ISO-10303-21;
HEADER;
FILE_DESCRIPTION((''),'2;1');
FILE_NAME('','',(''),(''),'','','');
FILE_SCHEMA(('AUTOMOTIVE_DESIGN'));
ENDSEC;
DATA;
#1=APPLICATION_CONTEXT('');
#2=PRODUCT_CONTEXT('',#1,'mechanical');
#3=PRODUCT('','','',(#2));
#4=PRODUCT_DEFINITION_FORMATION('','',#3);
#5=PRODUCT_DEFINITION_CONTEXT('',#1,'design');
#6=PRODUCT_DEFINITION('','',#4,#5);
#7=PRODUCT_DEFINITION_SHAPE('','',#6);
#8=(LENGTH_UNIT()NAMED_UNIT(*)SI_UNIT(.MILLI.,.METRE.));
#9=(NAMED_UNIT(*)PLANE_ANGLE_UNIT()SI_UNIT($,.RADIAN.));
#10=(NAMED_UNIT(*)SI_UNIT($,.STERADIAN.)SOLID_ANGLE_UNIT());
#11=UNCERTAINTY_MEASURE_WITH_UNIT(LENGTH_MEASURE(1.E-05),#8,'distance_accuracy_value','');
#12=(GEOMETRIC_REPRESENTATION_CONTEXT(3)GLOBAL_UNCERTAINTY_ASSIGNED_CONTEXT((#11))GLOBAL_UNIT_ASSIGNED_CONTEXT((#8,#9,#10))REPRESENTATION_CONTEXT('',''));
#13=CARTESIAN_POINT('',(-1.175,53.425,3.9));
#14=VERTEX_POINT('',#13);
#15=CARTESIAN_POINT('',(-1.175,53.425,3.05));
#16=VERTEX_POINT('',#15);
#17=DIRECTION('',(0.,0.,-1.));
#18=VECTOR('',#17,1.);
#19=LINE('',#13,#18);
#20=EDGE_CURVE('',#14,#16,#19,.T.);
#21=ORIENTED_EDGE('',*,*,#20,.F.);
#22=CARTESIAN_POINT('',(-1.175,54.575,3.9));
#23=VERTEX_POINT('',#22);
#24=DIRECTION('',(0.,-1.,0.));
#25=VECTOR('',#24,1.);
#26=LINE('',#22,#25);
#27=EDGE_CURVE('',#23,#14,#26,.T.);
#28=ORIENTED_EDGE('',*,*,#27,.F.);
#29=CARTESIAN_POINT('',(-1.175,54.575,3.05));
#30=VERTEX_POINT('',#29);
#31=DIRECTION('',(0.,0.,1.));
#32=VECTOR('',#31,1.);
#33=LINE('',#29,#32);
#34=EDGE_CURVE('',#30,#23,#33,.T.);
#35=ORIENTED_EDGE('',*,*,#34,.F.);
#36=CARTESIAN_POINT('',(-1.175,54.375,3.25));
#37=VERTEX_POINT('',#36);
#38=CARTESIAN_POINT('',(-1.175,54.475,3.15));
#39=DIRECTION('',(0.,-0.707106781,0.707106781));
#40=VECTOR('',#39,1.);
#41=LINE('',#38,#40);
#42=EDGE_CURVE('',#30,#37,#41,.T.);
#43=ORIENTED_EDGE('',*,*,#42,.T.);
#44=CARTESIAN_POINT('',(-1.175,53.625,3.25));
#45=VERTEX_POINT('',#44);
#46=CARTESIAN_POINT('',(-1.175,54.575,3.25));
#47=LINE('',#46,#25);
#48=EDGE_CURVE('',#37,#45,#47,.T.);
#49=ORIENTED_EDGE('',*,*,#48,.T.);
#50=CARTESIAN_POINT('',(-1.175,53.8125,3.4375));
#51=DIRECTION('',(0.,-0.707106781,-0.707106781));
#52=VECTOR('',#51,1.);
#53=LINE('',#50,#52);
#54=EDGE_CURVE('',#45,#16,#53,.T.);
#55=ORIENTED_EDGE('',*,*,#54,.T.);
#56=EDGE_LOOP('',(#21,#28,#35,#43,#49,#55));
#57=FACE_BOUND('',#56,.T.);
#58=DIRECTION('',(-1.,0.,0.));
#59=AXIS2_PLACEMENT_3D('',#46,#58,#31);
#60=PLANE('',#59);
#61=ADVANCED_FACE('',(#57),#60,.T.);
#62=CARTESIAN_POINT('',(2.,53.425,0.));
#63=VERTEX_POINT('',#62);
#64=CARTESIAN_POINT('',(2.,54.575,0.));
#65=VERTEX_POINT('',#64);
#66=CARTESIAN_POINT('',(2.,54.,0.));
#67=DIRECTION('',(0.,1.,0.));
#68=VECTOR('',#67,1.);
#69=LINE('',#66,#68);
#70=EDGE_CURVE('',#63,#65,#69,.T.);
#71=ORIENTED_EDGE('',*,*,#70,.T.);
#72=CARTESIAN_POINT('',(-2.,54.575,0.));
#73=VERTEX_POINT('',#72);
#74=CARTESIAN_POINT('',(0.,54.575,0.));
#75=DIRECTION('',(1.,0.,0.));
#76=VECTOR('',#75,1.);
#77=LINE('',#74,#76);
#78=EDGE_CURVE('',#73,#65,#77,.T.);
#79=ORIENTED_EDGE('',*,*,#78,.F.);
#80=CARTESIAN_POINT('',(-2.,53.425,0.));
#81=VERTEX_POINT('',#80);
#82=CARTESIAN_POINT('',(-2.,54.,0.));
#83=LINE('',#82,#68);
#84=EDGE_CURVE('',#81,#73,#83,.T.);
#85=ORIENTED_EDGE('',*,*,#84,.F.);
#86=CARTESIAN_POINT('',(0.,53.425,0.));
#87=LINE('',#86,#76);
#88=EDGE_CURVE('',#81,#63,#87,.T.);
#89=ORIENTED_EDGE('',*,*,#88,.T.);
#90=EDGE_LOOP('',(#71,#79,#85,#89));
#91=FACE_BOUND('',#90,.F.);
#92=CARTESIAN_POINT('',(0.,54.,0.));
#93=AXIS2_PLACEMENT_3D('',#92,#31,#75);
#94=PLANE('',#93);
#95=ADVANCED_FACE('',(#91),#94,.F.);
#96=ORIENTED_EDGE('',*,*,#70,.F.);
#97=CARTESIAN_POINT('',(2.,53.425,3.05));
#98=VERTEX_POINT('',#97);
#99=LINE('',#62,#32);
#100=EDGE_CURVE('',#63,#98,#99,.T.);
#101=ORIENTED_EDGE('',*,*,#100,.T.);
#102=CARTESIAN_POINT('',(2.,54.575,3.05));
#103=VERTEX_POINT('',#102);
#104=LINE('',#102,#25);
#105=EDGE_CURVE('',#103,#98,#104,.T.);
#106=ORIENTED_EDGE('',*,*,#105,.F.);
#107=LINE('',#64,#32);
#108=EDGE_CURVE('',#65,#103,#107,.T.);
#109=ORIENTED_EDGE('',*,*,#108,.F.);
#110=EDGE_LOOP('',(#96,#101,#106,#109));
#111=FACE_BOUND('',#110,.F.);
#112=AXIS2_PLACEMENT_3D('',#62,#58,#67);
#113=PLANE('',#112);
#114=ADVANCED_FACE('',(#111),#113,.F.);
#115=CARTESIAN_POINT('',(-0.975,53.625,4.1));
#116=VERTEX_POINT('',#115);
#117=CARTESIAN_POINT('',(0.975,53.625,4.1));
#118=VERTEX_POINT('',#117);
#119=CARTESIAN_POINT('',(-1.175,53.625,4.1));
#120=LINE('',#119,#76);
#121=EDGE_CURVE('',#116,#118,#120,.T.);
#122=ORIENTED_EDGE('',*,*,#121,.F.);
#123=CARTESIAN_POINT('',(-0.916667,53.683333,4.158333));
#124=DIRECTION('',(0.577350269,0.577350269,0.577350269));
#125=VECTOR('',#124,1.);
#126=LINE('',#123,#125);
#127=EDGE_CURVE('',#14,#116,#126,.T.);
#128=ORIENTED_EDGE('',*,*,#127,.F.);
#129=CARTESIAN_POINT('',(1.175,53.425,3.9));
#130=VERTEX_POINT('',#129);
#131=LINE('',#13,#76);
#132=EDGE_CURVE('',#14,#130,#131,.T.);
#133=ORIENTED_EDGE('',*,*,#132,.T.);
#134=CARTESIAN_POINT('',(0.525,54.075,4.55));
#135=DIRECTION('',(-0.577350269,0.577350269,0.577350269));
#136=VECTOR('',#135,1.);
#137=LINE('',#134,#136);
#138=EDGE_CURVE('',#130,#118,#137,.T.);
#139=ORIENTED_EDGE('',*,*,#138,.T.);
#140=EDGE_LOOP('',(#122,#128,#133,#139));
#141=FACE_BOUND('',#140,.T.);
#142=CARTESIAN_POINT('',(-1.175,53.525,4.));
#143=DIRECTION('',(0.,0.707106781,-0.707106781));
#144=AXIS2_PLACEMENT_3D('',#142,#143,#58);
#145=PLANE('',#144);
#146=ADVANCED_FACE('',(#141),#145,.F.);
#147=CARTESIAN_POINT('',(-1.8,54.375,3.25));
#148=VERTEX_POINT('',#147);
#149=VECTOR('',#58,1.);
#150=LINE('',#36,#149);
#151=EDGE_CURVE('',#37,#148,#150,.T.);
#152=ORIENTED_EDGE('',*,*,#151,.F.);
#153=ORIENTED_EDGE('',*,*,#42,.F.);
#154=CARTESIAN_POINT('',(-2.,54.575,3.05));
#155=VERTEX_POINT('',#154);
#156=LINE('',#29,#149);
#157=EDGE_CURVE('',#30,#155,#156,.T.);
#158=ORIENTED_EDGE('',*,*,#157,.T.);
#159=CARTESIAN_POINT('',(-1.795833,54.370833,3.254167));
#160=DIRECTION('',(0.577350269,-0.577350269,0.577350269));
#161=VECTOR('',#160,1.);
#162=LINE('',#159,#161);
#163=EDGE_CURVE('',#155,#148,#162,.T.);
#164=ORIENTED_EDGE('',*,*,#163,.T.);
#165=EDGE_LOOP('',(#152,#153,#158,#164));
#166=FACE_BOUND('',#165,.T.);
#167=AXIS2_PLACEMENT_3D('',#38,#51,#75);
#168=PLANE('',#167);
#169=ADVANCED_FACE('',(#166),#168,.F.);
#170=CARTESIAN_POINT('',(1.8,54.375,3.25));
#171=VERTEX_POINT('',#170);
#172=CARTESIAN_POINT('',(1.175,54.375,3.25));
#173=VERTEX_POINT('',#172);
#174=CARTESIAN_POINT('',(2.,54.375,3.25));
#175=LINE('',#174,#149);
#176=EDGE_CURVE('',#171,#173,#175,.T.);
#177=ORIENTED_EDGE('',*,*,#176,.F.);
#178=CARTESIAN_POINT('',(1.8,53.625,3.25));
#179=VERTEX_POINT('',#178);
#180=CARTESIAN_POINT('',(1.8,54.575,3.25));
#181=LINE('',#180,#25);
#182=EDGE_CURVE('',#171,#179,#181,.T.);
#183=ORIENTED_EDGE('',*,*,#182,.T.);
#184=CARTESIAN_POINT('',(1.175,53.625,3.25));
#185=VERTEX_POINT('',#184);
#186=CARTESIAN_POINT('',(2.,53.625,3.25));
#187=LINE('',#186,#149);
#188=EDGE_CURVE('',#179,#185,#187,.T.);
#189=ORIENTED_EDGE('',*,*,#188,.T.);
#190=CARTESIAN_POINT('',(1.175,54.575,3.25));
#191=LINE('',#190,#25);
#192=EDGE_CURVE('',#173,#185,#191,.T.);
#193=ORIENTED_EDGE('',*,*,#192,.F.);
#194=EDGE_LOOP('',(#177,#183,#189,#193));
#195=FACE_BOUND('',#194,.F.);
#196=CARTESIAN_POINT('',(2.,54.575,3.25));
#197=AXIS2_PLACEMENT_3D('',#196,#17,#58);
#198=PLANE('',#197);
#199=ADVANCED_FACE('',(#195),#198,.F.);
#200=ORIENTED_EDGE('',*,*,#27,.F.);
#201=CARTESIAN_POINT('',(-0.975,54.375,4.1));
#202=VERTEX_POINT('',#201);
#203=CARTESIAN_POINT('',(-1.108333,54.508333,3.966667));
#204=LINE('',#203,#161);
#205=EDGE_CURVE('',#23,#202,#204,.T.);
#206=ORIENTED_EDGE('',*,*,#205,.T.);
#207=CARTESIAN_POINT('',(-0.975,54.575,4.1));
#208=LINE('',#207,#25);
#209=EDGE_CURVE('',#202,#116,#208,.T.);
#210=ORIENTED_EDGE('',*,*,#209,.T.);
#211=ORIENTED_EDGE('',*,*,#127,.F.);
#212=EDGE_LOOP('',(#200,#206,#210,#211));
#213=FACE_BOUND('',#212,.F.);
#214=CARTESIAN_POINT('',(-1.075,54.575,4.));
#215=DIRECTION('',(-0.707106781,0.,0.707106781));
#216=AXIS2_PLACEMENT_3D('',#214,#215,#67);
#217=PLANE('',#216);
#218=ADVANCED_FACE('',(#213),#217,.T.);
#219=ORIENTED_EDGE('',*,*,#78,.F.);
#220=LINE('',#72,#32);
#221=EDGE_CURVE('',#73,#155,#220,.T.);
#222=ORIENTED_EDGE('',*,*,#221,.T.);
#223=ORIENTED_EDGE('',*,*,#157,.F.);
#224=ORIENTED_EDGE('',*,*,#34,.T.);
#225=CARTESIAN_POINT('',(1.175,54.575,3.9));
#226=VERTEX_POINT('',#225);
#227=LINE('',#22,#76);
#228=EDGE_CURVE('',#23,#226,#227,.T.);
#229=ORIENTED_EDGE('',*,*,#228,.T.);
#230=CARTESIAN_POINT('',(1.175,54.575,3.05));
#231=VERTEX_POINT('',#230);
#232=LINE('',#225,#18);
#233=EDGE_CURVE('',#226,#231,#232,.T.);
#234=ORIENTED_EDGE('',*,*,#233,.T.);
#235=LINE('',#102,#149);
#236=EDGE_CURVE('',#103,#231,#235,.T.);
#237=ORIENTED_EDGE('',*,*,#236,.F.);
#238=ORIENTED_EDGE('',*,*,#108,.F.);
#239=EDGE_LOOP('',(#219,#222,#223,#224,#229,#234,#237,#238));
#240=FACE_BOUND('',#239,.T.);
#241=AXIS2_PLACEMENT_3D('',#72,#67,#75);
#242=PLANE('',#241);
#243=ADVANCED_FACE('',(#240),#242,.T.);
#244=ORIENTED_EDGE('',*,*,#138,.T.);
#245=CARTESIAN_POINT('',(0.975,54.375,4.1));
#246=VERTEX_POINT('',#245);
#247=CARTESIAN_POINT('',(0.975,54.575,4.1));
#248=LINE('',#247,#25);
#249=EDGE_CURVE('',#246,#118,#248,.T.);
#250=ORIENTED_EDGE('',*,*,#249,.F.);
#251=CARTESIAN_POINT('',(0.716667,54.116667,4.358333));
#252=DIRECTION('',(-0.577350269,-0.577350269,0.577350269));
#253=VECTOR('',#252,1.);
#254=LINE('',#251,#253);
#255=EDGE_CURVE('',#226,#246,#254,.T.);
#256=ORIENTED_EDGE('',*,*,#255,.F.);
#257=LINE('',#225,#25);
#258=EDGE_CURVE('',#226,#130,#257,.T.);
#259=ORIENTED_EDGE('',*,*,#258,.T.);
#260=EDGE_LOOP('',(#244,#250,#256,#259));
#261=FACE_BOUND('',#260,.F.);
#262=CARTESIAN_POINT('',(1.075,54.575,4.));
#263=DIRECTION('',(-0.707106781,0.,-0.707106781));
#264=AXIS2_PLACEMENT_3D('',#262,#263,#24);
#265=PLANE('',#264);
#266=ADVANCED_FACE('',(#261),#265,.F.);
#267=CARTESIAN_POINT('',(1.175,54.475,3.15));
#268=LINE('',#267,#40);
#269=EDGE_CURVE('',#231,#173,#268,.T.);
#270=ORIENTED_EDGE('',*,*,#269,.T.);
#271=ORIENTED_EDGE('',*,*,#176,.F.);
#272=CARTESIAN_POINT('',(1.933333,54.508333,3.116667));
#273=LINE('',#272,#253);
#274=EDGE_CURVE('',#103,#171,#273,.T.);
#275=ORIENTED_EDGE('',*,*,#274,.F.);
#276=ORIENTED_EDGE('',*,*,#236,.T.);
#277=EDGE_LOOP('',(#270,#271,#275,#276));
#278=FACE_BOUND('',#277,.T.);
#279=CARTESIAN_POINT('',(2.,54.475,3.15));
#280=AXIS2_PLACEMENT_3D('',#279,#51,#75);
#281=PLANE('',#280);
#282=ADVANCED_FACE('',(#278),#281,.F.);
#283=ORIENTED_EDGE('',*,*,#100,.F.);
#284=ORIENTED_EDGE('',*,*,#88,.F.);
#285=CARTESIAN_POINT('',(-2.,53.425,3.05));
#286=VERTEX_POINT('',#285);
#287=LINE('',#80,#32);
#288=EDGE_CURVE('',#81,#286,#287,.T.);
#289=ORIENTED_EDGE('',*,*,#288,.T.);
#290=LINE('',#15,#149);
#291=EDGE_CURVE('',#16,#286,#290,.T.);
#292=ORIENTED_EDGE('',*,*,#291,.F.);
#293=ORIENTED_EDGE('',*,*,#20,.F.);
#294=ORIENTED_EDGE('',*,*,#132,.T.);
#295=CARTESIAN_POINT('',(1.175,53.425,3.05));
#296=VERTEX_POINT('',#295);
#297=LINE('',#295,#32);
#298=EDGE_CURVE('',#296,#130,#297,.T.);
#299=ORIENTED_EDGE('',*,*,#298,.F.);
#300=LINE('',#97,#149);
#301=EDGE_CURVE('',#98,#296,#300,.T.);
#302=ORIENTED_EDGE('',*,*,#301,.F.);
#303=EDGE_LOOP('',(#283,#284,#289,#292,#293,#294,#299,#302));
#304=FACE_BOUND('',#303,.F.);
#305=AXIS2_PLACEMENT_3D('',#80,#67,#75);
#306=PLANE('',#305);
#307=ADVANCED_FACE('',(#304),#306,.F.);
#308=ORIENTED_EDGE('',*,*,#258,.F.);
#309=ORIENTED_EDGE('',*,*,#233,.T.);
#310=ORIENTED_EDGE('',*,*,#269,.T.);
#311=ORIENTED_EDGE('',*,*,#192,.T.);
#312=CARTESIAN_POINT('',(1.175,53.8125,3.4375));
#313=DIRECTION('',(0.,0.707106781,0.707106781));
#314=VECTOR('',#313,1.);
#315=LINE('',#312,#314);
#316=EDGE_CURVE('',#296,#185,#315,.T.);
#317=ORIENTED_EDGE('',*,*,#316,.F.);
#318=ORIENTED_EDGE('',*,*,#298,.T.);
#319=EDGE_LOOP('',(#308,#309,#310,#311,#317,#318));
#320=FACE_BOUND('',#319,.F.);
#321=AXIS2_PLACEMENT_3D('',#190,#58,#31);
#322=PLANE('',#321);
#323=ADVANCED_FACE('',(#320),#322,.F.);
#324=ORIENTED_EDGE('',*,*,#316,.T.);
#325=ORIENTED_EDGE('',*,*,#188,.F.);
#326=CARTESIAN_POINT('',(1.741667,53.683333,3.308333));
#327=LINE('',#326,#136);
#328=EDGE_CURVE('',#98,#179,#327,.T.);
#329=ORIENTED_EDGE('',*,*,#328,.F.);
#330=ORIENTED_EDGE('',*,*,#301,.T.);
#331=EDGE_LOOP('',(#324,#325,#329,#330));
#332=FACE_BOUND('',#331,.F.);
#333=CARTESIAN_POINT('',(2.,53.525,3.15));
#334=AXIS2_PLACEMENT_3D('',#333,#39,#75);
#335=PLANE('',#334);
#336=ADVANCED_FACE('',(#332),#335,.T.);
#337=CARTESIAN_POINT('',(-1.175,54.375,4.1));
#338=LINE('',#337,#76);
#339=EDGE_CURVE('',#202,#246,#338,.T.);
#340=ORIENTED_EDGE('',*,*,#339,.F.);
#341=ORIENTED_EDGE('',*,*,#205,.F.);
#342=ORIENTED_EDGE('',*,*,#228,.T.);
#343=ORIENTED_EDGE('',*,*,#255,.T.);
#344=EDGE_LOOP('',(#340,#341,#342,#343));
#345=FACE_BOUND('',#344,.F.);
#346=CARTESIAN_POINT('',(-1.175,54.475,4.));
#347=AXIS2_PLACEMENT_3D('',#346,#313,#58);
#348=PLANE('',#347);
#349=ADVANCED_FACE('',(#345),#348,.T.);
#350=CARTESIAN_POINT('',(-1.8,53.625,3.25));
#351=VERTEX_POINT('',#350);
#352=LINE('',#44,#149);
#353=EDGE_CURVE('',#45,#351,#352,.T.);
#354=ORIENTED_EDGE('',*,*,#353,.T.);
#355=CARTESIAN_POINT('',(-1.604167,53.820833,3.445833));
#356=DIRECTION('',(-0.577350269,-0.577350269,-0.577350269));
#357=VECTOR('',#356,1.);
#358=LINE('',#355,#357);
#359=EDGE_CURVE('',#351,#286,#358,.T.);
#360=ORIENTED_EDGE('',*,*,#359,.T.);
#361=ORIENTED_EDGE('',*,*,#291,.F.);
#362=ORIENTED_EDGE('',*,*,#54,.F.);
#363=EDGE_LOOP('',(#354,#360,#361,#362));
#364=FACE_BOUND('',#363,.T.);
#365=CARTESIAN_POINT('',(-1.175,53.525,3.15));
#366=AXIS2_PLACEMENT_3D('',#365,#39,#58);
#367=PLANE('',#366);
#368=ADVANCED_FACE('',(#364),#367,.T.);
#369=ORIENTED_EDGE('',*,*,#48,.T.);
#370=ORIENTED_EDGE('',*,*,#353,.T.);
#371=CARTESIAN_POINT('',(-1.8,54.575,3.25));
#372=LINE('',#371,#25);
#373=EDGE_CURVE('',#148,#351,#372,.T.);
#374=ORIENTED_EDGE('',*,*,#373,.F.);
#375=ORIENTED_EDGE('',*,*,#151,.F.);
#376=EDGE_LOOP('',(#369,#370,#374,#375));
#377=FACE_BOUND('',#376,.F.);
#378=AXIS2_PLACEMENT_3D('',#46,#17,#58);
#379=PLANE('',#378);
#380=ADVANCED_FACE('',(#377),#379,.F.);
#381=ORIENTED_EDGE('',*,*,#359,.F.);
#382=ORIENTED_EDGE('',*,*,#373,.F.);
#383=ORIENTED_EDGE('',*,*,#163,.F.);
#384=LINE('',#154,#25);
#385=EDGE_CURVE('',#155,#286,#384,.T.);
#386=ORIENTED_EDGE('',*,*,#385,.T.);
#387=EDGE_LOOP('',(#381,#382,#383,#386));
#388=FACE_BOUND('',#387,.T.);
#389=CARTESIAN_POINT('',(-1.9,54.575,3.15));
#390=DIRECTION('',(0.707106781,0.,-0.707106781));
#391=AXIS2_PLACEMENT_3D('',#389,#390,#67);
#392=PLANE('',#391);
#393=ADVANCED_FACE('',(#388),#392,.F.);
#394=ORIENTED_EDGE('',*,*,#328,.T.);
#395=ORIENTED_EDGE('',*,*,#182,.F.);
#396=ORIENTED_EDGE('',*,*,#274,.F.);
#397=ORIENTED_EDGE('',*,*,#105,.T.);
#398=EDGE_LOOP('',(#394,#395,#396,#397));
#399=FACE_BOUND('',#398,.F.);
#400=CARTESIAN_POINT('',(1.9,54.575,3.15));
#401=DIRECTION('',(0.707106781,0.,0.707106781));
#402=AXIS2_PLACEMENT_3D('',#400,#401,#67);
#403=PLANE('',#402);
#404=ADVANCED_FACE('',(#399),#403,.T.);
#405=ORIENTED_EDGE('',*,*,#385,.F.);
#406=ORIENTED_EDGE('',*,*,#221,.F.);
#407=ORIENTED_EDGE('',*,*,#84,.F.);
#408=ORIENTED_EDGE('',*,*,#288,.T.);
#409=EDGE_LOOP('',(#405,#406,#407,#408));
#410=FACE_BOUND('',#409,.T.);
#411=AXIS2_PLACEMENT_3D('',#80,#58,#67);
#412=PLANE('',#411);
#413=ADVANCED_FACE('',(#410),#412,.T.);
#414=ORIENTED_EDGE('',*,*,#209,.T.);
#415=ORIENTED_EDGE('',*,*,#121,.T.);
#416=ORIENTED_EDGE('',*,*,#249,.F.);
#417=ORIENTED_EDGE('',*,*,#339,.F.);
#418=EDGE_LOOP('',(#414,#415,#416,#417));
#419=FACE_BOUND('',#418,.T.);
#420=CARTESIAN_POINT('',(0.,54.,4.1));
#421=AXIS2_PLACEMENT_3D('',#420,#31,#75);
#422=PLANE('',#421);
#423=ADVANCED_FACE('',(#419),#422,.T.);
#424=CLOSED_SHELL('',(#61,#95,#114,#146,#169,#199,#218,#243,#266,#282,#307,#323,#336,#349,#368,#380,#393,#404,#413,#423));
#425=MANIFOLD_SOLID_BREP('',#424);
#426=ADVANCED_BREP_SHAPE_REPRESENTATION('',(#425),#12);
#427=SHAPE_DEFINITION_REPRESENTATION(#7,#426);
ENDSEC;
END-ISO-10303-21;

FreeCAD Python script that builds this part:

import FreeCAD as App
import Part
import Sketcher
from FreeCAD import Vector


def edges_at(feature, points):
    """Names of the edges that pass closest to the given points."""
    edges = feature.Shape.Edges
    near = lambda p: min(range(len(edges)), key=lambda i: edges[i].distToShape(Part.Vertex(*p))[0])
    return sorted({f"Edge{near(p) + 1}" for p in points})


def add_polygon(sketch, points):
    """Adds a closed chain of lines whose ends are joined by coincident constraints."""
    first, n = sketch.GeometryCount, len(points)
    for a, b in zip(points, points[1:] + points[:1]):
        sketch.addGeometry(Part.LineSegment(App.Vector(*a, 0), App.Vector(*b, 0)), False)
    for i in range(n):
        sketch.addConstraint(Sketcher.Constraint("Coincident", first + i, 2, first + (i + 1) % n, 1))

doc = App.newDocument("Part")
params = doc.addObject("Spreadsheet::Sheet", "Params")
for row, (alias, value) in enumerate([
    ("sketch1_width", "4 mm"),
    ("sketch1_height", "1.15 mm"),
    ("pad1_length", "4.1 mm"),
    ("sketch2_height", "0.85 mm"),
    ("pocket1_length", "5 mm"),
    ("chamfer_size", "0.2 mm"),
], start=1):
    params.set(f"A{row}", alias)
    params.set(f"B{row}", "=" + value)
    params.setAlias(f"B{row}", alias)

body = doc.addObject("PartDesign::Body", "Body")

# Sketch on XY plane
sketch1 = body.newObject("Sketcher::SketchObject", "Sketch")
sketch1.AttachmentSupport = (doc.getObject("XY_Plane"), [""])
sketch1.MapMode = "FlatFace"
add_polygon(sketch1, [(-2, 0.6), (-2, -0.6), (2, -0.6), (2, 0.6)])  # lines 0-3
sketch1.addConstraint([
    Sketcher.Constraint("Vertical", 0),
    Sketcher.Constraint("Horizontal", 1),
    Sketcher.Constraint("Vertical", 2),
    Sketcher.Constraint("Horizontal", 3),
    Sketcher.Constraint("Symmetric", 0, 2, 2, 2, -1, 1),
    Sketcher.Constraint("DistanceX", 1, 1, 1, 2, 4.0),
    Sketcher.Constraint("DistanceY", 0, 2, 0, 1, 1.15),
])
sketch1.setExpression("Constraints[9]", "Params.sketch1_width")
sketch1.setExpression("Constraints[10]", "Params.sketch1_height")
pad1 = body.newObject("PartDesign::Pad", "Pad")
pad1.Profile = sketch1
pad1.setExpression("Length", "Params.pad1_length")

# Sketch on XZ plane
sketch2 = body.newObject("Sketcher::SketchObject", "Sketch001")
sketch2.AttachmentSupport = (doc.getObject("XZ_Plane"), [""])
sketch2.MapMode = "FlatFace"
sketch2.AttachmentOffset = App.Placement(Vector(0, 0, -0.575), App.Rotation())
add_polygon(sketch2, [(2, 4.1), (2, 3.2), (1.2, 3.2), (1.2, 4.1)])  # lines 0-3
add_polygon(sketch2, [(-1.2, 4.1), (-1.2, 3.2), (-2, 3.2), (-2, 4.1)])  # lines 4-7
sketch2.addConstraint([
    Sketcher.Constraint("Vertical", 0),
    Sketcher.Constraint("Horizontal", 1),
    Sketcher.Constraint("Vertical", 2),
    Sketcher.Constraint("Horizontal", 3),
    Sketcher.Constraint("Vertical", 4),
    Sketcher.Constraint("Horizontal", 5),
    Sketcher.Constraint("Vertical", 6),
    Sketcher.Constraint("Horizontal", 7),
    Sketcher.Constraint("Symmetric", 1, 2, 4, 2, -2),
    Sketcher.Constraint("Symmetric", 3, 2, 6, 2, -2),
    Sketcher.Constraint("DistanceX", -1, 1, 0, 2, 2.0),
    Sketcher.Constraint("DistanceY", 0, 2, 0, 1, 0.85),
    Sketcher.Constraint("DistanceY", -1, 1, 2, 2, 4.1),
    Sketcher.Constraint("DistanceX", 1, 2, 1, 1, 0.825),
])
sketch2.setExpression("Constraints[19]", "Params.sketch2_height")
pocket1 = body.newObject("PartDesign::Pocket", "Pocket")
pocket1.Profile = sketch2
pocket1.setExpression("Length", "Params.pocket1_length")
pocket1.Reversed = True
doc.recompute()

chamfer = body.newObject("PartDesign::Chamfer", "Chamfer")
chamfer.Base = (pocket1, edges_at(pocket1, [
    (0, 0.575, 4.1),
    (0, -0.575, 4.1),
    (1.587, 0.575, 3.25),
    (-1.587, 0.575, 3.25),
    (-1.587, -0.575, 3.25),
    (1.587, -0.575, 3.25),
    (2, 0, 3.25),
    (-2, 0, 3.25),
    (1.175, 0, 4.1),
    (-1.175, 0, 4.1),
]))
chamfer.setExpression("Size", "Params.chamfer_size")
body2 = doc.addObject("PartDesign::Body", "Body001")
doc.recompute()

body.Placement = App.Placement(Vector(0, 54, 0), App.Rotation(Vector(0, 0, 1), 0))
boolean = body2.newObject("PartDesign::Boolean", "Boolean")
boolean.Type = "Fuse"
boolean.addObjects([body])

doc.recompute()
